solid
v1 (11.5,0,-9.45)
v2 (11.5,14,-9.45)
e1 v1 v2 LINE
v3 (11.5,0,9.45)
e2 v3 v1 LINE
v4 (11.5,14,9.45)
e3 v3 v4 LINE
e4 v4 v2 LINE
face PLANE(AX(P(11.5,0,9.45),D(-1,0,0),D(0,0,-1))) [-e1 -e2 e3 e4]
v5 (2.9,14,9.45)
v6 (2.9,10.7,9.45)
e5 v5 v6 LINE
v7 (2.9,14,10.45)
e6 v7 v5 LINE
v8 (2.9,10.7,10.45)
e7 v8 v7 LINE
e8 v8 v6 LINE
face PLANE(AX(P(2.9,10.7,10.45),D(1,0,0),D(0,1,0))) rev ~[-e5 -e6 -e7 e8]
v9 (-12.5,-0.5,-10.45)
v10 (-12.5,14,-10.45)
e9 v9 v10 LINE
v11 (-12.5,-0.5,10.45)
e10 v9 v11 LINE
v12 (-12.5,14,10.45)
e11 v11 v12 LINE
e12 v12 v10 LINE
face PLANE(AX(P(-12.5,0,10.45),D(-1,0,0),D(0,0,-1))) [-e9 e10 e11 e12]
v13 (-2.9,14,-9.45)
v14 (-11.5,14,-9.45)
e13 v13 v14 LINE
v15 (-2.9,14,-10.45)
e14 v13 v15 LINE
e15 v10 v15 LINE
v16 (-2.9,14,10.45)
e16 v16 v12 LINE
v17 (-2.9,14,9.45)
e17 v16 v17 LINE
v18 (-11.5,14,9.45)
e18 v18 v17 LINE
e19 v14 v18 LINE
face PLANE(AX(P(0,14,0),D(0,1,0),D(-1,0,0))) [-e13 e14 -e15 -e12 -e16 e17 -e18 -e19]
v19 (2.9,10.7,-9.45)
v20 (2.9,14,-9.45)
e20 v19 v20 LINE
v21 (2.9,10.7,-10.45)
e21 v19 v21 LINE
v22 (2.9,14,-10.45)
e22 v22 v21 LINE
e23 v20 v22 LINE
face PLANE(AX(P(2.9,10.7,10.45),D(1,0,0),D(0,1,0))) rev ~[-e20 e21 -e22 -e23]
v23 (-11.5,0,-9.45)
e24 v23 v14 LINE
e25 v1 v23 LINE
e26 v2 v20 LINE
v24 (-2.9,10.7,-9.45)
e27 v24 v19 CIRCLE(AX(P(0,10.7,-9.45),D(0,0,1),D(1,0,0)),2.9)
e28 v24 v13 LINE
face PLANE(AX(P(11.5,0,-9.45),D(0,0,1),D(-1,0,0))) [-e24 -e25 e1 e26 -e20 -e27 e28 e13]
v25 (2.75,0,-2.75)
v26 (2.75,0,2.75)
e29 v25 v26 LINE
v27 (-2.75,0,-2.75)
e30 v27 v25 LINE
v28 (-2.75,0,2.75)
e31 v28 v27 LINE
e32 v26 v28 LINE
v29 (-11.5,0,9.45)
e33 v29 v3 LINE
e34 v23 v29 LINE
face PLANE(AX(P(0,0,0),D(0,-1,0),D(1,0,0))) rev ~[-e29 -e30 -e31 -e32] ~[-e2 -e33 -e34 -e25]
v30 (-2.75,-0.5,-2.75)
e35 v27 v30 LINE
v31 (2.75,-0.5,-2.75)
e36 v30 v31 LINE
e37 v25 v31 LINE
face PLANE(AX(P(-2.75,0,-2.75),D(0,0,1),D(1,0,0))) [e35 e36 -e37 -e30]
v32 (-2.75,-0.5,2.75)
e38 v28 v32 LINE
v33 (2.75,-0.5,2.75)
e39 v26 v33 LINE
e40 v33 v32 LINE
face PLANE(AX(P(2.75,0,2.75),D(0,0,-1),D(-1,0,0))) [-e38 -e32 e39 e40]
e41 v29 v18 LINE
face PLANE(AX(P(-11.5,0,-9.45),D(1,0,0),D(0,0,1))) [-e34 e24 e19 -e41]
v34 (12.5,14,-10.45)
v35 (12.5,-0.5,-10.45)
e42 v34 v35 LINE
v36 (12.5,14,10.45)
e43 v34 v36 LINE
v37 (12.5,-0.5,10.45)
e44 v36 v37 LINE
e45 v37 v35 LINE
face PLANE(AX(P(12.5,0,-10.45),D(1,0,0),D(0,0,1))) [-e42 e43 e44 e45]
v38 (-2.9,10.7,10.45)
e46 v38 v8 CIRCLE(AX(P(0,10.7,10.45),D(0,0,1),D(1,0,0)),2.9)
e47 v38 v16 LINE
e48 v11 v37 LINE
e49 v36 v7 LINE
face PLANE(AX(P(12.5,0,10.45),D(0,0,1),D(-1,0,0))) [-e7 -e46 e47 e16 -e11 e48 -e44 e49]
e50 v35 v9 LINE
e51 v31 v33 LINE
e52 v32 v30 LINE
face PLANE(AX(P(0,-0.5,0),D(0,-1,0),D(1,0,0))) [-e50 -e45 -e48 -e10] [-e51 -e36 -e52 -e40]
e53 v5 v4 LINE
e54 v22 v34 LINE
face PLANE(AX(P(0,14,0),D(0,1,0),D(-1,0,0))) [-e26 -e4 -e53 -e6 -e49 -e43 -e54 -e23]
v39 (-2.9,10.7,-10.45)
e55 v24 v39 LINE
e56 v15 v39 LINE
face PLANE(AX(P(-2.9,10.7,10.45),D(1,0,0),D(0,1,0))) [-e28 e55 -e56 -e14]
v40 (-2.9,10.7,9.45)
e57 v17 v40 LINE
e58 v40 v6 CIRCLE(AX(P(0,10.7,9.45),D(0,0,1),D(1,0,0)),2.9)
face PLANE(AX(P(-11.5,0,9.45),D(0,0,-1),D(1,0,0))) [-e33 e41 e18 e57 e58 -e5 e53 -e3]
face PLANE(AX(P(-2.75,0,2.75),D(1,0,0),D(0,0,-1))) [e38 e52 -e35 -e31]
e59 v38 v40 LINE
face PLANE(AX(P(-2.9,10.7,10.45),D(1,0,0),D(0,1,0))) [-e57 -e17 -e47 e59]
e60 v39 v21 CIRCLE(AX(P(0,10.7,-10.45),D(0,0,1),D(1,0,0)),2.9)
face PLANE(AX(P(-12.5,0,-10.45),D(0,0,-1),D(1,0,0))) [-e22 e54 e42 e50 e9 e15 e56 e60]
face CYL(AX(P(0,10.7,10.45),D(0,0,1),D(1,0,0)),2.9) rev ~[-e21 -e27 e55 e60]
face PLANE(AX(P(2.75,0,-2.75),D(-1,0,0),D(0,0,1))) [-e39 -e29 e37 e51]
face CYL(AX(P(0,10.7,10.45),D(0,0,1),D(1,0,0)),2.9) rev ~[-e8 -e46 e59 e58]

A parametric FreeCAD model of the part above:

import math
import FreeCAD as App
import Part
import Sketcher

V = App.Vector

doc = App.newDocument("Part")
body = doc.addObject("PartDesign::Body", "Body")

sketch1 = body.newObject("Sketcher::SketchObject", "Sketch")
sketch1.AttachmentSupport = (doc.getObject("XZ_Plane"), [""])
sketch1.MapMode = "FlatFace"
sketch1.addGeometry(Part.LineSegment(V(12, -10, 0), V(-12, -10, 0)), False)
sketch1.addGeometry(Part.LineSegment(V(-12, -10, 0), V(-12, 10, 0)), False)
sketch1.addGeometry(Part.LineSegment(V(-12, 10, 0), V(12, 10, 0)), False)
sketch1.addGeometry(Part.LineSegment(V(12, 10, 0), V(12, -10, 0)), False)
sketch1.addGeometry(Part.LineSegment(V(-12, -9, 0), V(12, -9, 0)), False)
sketch1.addGeometry(Part.LineSegment(V(12, -9, 0), V(12, 9, 0)), False)
sketch1.addGeometry(Part.LineSegment(V(12, 9, 0), V(-12, 9, 0)), False)
sketch1.addGeometry(Part.LineSegment(V(-12, 9, 0), V(-12, -9, 0)), False)
sketch1.addConstraint(Sketcher.Constraint("Coincident", 0, 2, 1, 1))
sketch1.addConstraint(Sketcher.Constraint("Coincident", 1, 2, 2, 1))
sketch1.addConstraint(Sketcher.Constraint("Coincident", 2, 2, 3, 1))
sketch1.addConstraint(Sketcher.Constraint("Coincident", 3, 2, 0, 1))
sketch1.addConstraint(Sketcher.Constraint("Coincident", 4, 2, 5, 1))
sketch1.addConstraint(Sketcher.Constraint("Coincident", 5, 2, 6, 1))
sketch1.addConstraint(Sketcher.Constraint("Coincident", 6, 2, 7, 1))
sketch1.addConstraint(Sketcher.Constraint("Coincident", 7, 2, 4, 1))
sketch1.addConstraint(Sketcher.Constraint("Horizontal", 0))
sketch1.addConstraint(Sketcher.Constraint("Vertical", 1))
sketch1.addConstraint(Sketcher.Constraint("Horizontal", 2))
sketch1.addConstraint(Sketcher.Constraint("Vertical", 3))
sketch1.addConstraint(Sketcher.Constraint("Horizontal", 4))
sketch1.addConstraint(Sketcher.Constraint("Vertical", 5))
sketch1.addConstraint(Sketcher.Constraint("Horizontal", 6))
sketch1.addConstraint(Sketcher.Constraint("Vertical", 7))
sketch1.addConstraint(Sketcher.Constraint("Symmetric", 0, 2, 2, 2, -1, 1))
sketch1.addConstraint(Sketcher.Constraint("Symmetric", 4, 2, 6, 2, -1, 1))
sketch1.addConstraint(Sketcher.Constraint("DistanceX", 0, 2, 0, 1, 25.0))
sketch1.addConstraint(Sketcher.Constraint("DistanceX", 4, 1, 4, 2, 23.0))
sketch1.addConstraint(Sketcher.Constraint("DistanceY", 1, 1, 1, 2, 20.9))
sketch1.addConstraint(Sketcher.Constraint("DistanceY", 5, 1, 5, 2, 18.9))
pad1 = body.newObject("PartDesign::Pad", "Pad")
pad1.Profile = sketch1
pad1.Length = 14
pad1.Reversed = True

sketch2 = body.newObject("Sketcher::SketchObject", "Sketch001")
sketch2.AttachmentSupport = (doc.getObject("XZ_Plane"), [""])
sketch2.MapMode = "FlatFace"
sketch2.addGeometry(Part.LineSegment(V(-12, 10, 0), V(-12, -10, 0)), False)
sketch2.addGeometry(Part.LineSegment(V(-12, -10, 0), V(12, -10, 0)), False)
sketch2.addGeometry(Part.LineSegment(V(12, -10, 0), V(12, 10, 0)), False)
sketch2.addGeometry(Part.LineSegment(V(12, 10, 0), V(-12, 10, 0)), False)
sketch2.addGeometry(Part.LineSegment(V(-3, 3, 0), V(3, 3, 0)), False)
sketch2.addGeometry(Part.LineSegment(V(3, 3, 0), V(3, -3, 0)), False)
sketch2.addGeometry(Part.LineSegment(V(3, -3, 0), V(-3, -3, 0)), False)
sketch2.addGeometry(Part.LineSegment(V(-3, -3, 0), V(-3, 3, 0)), False)
sketch2.addConstraint(Sketcher.Constraint("Coincident", 0, 2, 1, 1))
sketch2.addConstraint(Sketcher.Constraint("Coincident", 1, 2, 2, 1))
sketch2.addConstraint(Sketcher.Constraint("Coincident", 2, 2, 3, 1))
sketch2.addConstraint(Sketcher.Constraint("Coincident", 3, 2, 0, 1))
sketch2.addConstraint(Sketcher.Constraint("Coincident", 4, 2, 5, 1))
sketch2.addConstraint(Sketcher.Constraint("Coincident", 5, 2, 6, 1))
sketch2.addConstraint(Sketcher.Constraint("Coincident", 6, 2, 7, 1))
sketch2.addConstraint(Sketcher.Constraint("Coincident", 7, 2, 4, 1))
sketch2.addConstraint(Sketcher.Constraint("Vertical", 0))
sketch2.addConstraint(Sketcher.Constraint("Horizontal", 1))
sketch2.addConstraint(Sketcher.Constraint("Vertical", 2))
sketch2.addConstraint(Sketcher.Constraint("Horizontal", 3))
sketch2.addConstraint(Sketcher.Constraint("Horizontal", 4))
sketch2.addConstraint(Sketcher.Constraint("Vertical", 5))
sketch2.addConstraint(Sketcher.Constraint("Horizontal", 6))
sketch2.addConstraint(Sketcher.Constraint("Vertical", 7))
sketch2.addConstraint(Sketcher.Constraint("Symmetric", 0, 2, 2, 2, -1, 1))
sketch2.addConstraint(Sketcher.Constraint("Symmetric", 4, 2, 6, 2, -1, 1))
sketch2.addConstraint(Sketcher.Constraint("Equal", 6, 5))
sketch2.addConstraint(Sketcher.Constraint("DistanceX", 4, 1, 4, 2, 5.5))
sketch2.addConstraint(Sketcher.Constraint("DistanceX", 1, 1, 1, 2, 25.0))
sketch2.addConstraint(Sketcher.Constraint("DistanceY", 0, 2, 0, 1, 20.9))
pad2 = body.newObject("PartDesign::Pad", "Pad001")
pad2.Profile = sketch2
pad2.Length = 0.5

sketch3 = body.newObject("Sketcher::SketchObject", "Sketch002")
sketch3.AttachmentSupport = (doc.getObject("XY_Plane"), [""])
sketch3.MapMode = "FlatFace"
sketch3.AttachmentOffset = App.Placement(V(0, 0, 10.45), App.Rotation())
sketch3.addGeometry(Part.ArcOfCircle(Part.Circle(V(0, 10.7, 0), V(0, 0, 1), 2.9), math.radians(180), math.radians(360)), False)
sketch3.addGeometry(Part.LineSegment(V(2.9, 10.7, 0), V(2.9, 14, 0)), False)
sketch3.addGeometry(Part.LineSegment(V(2.9, 14, 0), V(-2.9, 14, 0)), False)
sketch3.addGeometry(Part.LineSegment(V(-2.9, 14, 0), V(-2.9, 10.7, 0)), False)
sketch3.addConstraint(Sketcher.Constraint("Tangent", 0, 2, 1, 1))
sketch3.addConstraint(Sketcher.Constraint("Coincident", 1, 2, 2, 1))
sketch3.addConstraint(Sketcher.Constraint("Coincident", 2, 2, 3, 1))
sketch3.addConstraint(Sketcher.Constraint("Tangent", 3, 2, 0, 1))
sketch3.addConstraint(Sketcher.Constraint("Vertical", 1))
sketch3.addConstraint(Sketcher.Constraint("Horizontal", 2))
sketch3.addConstraint(Sketcher.Constraint("Vertical", 3))
sketch3.addConstraint(Sketcher.Constraint("PointOnObject", 0, 3, -2))
sketch3.addConstraint(Sketcher.Constraint("Radius", 0, 2.9))
sketch3.addConstraint(Sketcher.Constraint("DistanceY", 1, 1, 1, 2, 3.3))
sketch3.addConstraint(Sketcher.Constraint("DistanceY", -1, 1, 1, 2, 14.0))
pocket1 = body.newObject("PartDesign::Pocket", "Pocket")
pocket1.Profile = sketch3
pocket1.Type = "ThroughAll"

doc.recompute()
